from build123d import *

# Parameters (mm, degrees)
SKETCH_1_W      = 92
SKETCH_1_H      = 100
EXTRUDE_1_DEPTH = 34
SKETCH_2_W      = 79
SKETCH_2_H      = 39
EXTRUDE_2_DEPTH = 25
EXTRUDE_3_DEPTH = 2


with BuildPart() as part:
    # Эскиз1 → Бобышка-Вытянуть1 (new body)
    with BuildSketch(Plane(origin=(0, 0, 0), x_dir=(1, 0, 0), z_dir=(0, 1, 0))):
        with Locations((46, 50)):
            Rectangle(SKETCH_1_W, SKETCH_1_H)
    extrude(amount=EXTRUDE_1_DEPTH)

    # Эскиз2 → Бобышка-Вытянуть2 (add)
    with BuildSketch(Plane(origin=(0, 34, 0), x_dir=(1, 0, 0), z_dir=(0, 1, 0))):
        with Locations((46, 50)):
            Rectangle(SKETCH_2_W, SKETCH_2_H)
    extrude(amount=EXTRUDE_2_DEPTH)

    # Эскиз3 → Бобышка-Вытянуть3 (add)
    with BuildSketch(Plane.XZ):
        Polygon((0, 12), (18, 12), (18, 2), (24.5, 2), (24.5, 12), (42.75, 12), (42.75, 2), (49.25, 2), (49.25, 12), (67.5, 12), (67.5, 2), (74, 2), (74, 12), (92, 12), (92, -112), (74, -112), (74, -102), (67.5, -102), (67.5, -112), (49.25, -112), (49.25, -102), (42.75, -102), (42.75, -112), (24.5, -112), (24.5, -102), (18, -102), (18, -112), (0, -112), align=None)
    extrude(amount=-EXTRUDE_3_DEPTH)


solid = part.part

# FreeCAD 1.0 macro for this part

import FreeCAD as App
import Part
import Sketcher
from FreeCAD import Vector
Q = App.Units.Quantity

doc = App.newDocument("Part")
body = doc.addObject("PartDesign::Body", "Body")

# Sketch on XZ plane
sketch1 = body.newObject("Sketcher::SketchObject", "Sketch")
sketch1.AttachmentSupport = (doc.getObject("XZ_Plane"), [""])
sketch1.MapMode = "FlatFace"
sketch1.addGeometry(Part.LineSegment(Vector(0, -100, 0), Vector(0, 0, 0)), False)
sketch1.addGeometry(Part.LineSegment(Vector(0, 0, 0), Vector(92, 0, 0)), False)
sketch1.addGeometry(Part.LineSegment(Vector(92, 0, 0), Vector(92, -100, 0)), False)
sketch1.addGeometry(Part.LineSegment(Vector(92, -100, 0), Vector(0, -100, 0)), False)
sketch1.addConstraint(Sketcher.Constraint("Coincident", 0, 2, 1, 1))
sketch1.addConstraint(Sketcher.Constraint("Coincident", 1, 2, 2, 1))
sketch1.addConstraint(Sketcher.Constraint("Coincident", 2, 2, 3, 1))
sketch1.addConstraint(Sketcher.Constraint("Coincident", 3, 2, 0, 1))
sketch1.addConstraint(Sketcher.Constraint("Vertical", 0))
sketch1.addConstraint(Sketcher.Constraint("Horizontal", 1))
sketch1.addConstraint(Sketcher.Constraint("Vertical", 2))
sketch1.addConstraint(Sketcher.Constraint("Horizontal", 3))
sketch1.addConstraint(Sketcher.Constraint("Coincident", 0, 2, -1, 1))
sketch1.addConstraint(Sketcher.Constraint("DistanceX", 1, 1, 1, 2, Q("92 mm")))
sketch1.addConstraint(Sketcher.Constraint("DistanceY", 0, 1, 0, 2, Q("100 mm")))
pad1 = body.newObject("PartDesign::Pad", "Pad")
pad1.Profile = sketch1
pad1.Length = 34
pad1.Reversed = True

# Sketch on XZ plane
sketch2 = body.newObject("Sketcher::SketchObject", "Sketch001")
sketch2.AttachmentSupport = (doc.getObject("XZ_Plane"), [""])
sketch2.MapMode = "FlatFace"
sketch2.AttachmentOffset = App.Placement(Vector(0, 0, -34), App.Rotation())
sketch2.addGeometry(Part.LineSegment(Vector(6, -70, 0), Vector(6, -30, 0)), False)
sketch2.addGeometry(Part.LineSegment(Vector(6, -30, 0), Vector(86, -30, 0)), False)
sketch2.addGeometry(Part.LineSegment(Vector(86, -30, 0), Vector(86, -70, 0)), False)
sketch2.addGeometry(Part.LineSegment(Vector(86, -70, 0), Vector(6, -70, 0)), False)
sketch2.addConstraint(Sketcher.Constraint("Coincident", 0, 2, 1, 1))
sketch2.addConstraint(Sketcher.Constraint("Coincident", 1, 2, 2, 1))
sketch2.addConstraint(Sketcher.Constraint("Coincident", 2, 2, 3, 1))
sketch2.addConstraint(Sketcher.Constraint("Coincident", 3, 2, 0, 1))
sketch2.addConstraint(Sketcher.Constraint("Vertical", 0))
sketch2.addConstraint(Sketcher.Constraint("Horizontal", 1))
sketch2.addConstraint(Sketcher.Constraint("Vertical", 2))
sketch2.addConstraint(Sketcher.Constraint("Horizontal", 3))
sketch2.addConstraint(Sketcher.Constraint("DistanceX", 1, 1, 1, 2, Q("79 mm")))
sketch2.addConstraint(Sketcher.Constraint("DistanceY", 0, 1, 0, 2, Q("39 mm")))
sketch2.addConstraint(Sketcher.Constraint("DistanceX", -1, 1, 0, 2, Q("6.5 mm")))
sketch2.addConstraint(Sketcher.Constraint("DistanceY", 0, 2, -1, 1, Q("30.5 mm")))
pad2 = body.newObject("PartDesign::Pad", "Pad001")
pad2.Profile = sketch2
pad2.Length = 25
pad2.Reversed = True

# Sketch on XZ plane
sketch3 = body.newObject("Sketcher::SketchObject", "Sketch002")
sketch3.AttachmentSupport = (doc.getObject("XZ_Plane"), [""])
sketch3.MapMode = "FlatFace"
sketch3.addGeometry(Part.LineSegment(Vector(18, 12, 0), Vector(0, 12, 0)), False)
sketch3.addGeometry(Part.LineSegment(Vector(0, 12, 0), Vector(0, -112, 0)), False)
sketch3.addGeometry(Part.LineSegment(Vector(0, -112, 0), Vector(18, -112, 0)), False)
sketch3.addGeometry(Part.LineSegment(Vector(18, -112, 0), Vector(18, -102, 0)), False)
sketch3.addGeometry(Part.LineSegment(Vector(18, -102, 0), Vector(24, -102, 0)), False)
sketch3.addGeometry(Part.LineSegment(Vector(24, -102, 0), Vector(24, -112, 0)), False)
sketch3.addGeometry(Part.LineSegment(Vector(24, -112, 0), Vector(43, -112, 0)), False)
sketch3.addGeometry(Part.LineSegment(Vector(43, -112, 0), Vector(43, -102, 0)), False)
sketch3.addGeometry(Part.LineSegment(Vector(43, -102, 0), Vector(49, -102, 0)), False)
sketch3.addGeometry(Part.LineSegment(Vector(49, -102, 0), Vector(49, -112, 0)), False)
sketch3.addGeometry(Part.LineSegment(Vector(49, -112, 0), Vector(68, -112, 0)), False)
sketch3.addGeometry(Part.LineSegment(Vector(68, -112, 0), Vector(68, -102, 0)), False)
sketch3.addGeometry(Part.LineSegment(Vector(68, -102, 0), Vector(74, -102, 0)), False)
sketch3.addGeometry(Part.LineSegment(Vector(74, -102, 0), Vector(74, -112, 0)), False)
sketch3.addGeometry(Part.LineSegment(Vector(74, -112, 0), Vector(92, -112, 0)), False)
sketch3.addGeometry(Part.LineSegment(Vector(92, -112, 0), Vector(92, 12, 0)), False)
sketch3.addGeometry(Part.LineSegment(Vector(92, 12, 0), Vector(74, 12, 0)), False)
sketch3.addGeometry(Part.LineSegment(Vector(74, 12, 0), Vector(74, 2, 0)), False)
sketch3.addGeometry(Part.LineSegment(Vector(74, 2, 0), Vector(68, 2, 0)), False)
sketch3.addGeometry(Part.LineSegment(Vector(68, 2, 0), Vector(68, 12, 0)), False)
sketch3.addGeometry(Part.LineSegment(Vector(68, 12, 0), Vector(49, 12, 0)), False)
sketch3.addGeometry(Part.LineSegment(Vector(49, 12, 0), Vector(49, 2, 0)), False)
sketch3.addGeometry(Part.LineSegment(Vector(49, 2, 0), Vector(43, 2, 0)), False)
sketch3.addGeometry(Part.LineSegment(Vector(43, 2, 0), Vector(43, 12, 0)), False)
sketch3.addGeometry(Part.LineSegment(Vector(43, 12, 0), Vector(24, 12, 0)), False)
sketch3.addGeometry(Part.LineSegment(Vector(24, 12, 0), Vector(24, 2, 0)), False)
sketch3.addGeometry(Part.LineSegment(Vector(24, 2, 0), Vector(18, 2, 0)), False)
sketch3.addGeometry(Part.LineSegment(Vector(18, 2, 0), Vector(18, 12, 0)), False)
sketch3.addConstraint(Sketcher.Constraint("Coincident", 0, 2, 1, 1))
sketch3.addConstraint(Sketcher.Constraint("Coincident", 1, 2, 2, 1))
sketch3.addConstraint(Sketcher.Constraint("Coincident", 2, 2, 3, 1))
sketch3.addConstraint(Sketcher.Constraint("Coincident", 3, 2, 4, 1))
sketch3.addConstraint(Sketcher.Constraint("Coincident", 4, 2, 5, 1))
sketch3.addConstraint(Sketcher.Constraint("Coincident", 5, 2, 6, 1))
sketch3.addConstraint(Sketcher.Constraint("Coincident", 6, 2, 7, 1))
sketch3.addConstraint(Sketcher.Constraint("Coincident", 7, 2, 8, 1))
sketch3.addConstraint(Sketcher.Constraint("Coincident", 8, 2, 9, 1))
sketch3.addConstraint(Sketcher.Constraint("Coincident", 9, 2, 10, 1))
sketch3.addConstraint(Sketcher.Constraint("Coincident", 10, 2, 11, 1))
sketch3.addConstraint(Sketcher.Constraint("Coincident", 11, 2, 12, 1))
sketch3.addConstraint(Sketcher.Constraint("Coincident", 12, 2, 13, 1))
sketch3.addConstraint(Sketcher.Constraint("Coincident", 13, 2, 14, 1))
sketch3.addConstraint(Sketcher.Constraint("Coincident", 14, 2, 15, 1))
sketch3.addConstraint(Sketcher.Constraint("Coincident", 15, 2, 16, 1))
sketch3.addConstraint(Sketcher.Constraint("Coincident", 16, 2, 17, 1))
sketch3.addConstraint(Sketcher.Constraint("Coincident", 17, 2, 18, 1))
sketch3.addConstraint(Sketcher.Constraint("Coincident", 18, 2, 19, 1))
sketch3.addConstraint(Sketcher.Constraint("Coincident", 19, 2, 20, 1))
sketch3.addConstraint(Sketcher.Constraint("Coincident", 20, 2, 21, 1))
sketch3.addConstraint(Sketcher.Constraint("Coincident", 21, 2, 22, 1))
sketch3.addConstraint(Sketcher.Constraint("Coincident", 22, 2, 23, 1))
sketch3.addConstraint(Sketcher.Constraint("Coincident", 23, 2, 24, 1))
sketch3.addConstraint(Sketcher.Constraint("Coincident", 24, 2, 25, 1))
sketch3.addConstraint(Sketcher.Constraint("Coincident", 25, 2, 26, 1))
sketch3.addConstraint(Sketcher.Constraint("Coincident", 26, 2, 27, 1))
sketch3.addConstraint(Sketcher.Constraint("Coincident", 27, 2, 0, 1))
sketch3.addConstraint(Sketcher.Constraint("Horizontal", 0))
sketch3.addConstraint(Sketcher.Constraint("Vertical", 1))
sketch3.addConstraint(Sketcher.Constraint("Horizontal", 2))
sketch3.addConstraint(Sketcher.Constraint("Vertical", 3))
sketch3.addConstraint(Sketcher.Constraint("Horizontal", 4))
sketch3.addConstraint(Sketcher.Constraint("Vertical", 5))
sketch3.addConstraint(Sketcher.Constraint("Horizontal", 6))
sketch3.addConstraint(Sketcher.Constraint("Vertical", 7))
sketch3.addConstraint(Sketcher.Constraint("Horizontal", 8))
sketch3.addConstraint(Sketcher.Constraint("Vertical", 9))
sketch3.addConstraint(Sketcher.Constraint("Horizontal", 10))
sketch3.addConstraint(Sketcher.Constraint("Vertical", 11))
sketch3.addConstraint(Sketcher.Constraint("Horizontal", 12))
sketch3.addConstraint(Sketcher.Constraint("Vertical", 13))
sketch3.addConstraint(Sketcher.Constraint("Horizontal", 14))
sketch3.addConstraint(Sketcher.Constraint("Vertical", 15))
sketch3.addConstraint(Sketcher.Constraint("Horizontal", 16))
sketch3.addConstraint(Sketcher.Constraint("Vertical", 17))
sketch3.addConstraint(Sketcher.Constraint("Horizontal", 18))
sketch3.addConstraint(Sketcher.Constraint("Vertical", 19))
sketch3.addConstraint(Sketcher.Constraint("Horizontal", 20))
sketch3.addConstraint(Sketcher.Constraint("Vertical", 21))
sketch3.addConstraint(Sketcher.Constraint("Horizontal", 22))
sketch3.addConstraint(Sketcher.Constraint("Vertical", 23))
sketch3.addConstraint(Sketcher.Constraint("Horizontal", 24))
sketch3.addConstraint(Sketcher.Constraint("Vertical", 25))
sketch3.addConstraint(Sketcher.Constraint("Horizontal", 26))
sketch3.addConstraint(Sketcher.Constraint("Vertical", 27))
sketch3.addConstraint(Sketcher.Constraint("PointOnObject", 0, 2, -2))
sketch3.addConstraint(Sketcher.Constraint("Horizontal", 2, 2, 5, 2))
sketch3.addConstraint(Sketcher.Constraint("Horizontal", 4, 2, 7, 2))
sketch3.addConstraint(Sketcher.Constraint("Horizontal", 6, 2, 9, 2))
sketch3.addConstraint(Sketcher.Constraint("Horizontal", 8, 2, 11, 2))
sketch3.addConstraint(Sketcher.Constraint("Horizontal", 10, 2, 13, 2))
sketch3.addConstraint(Sketcher.Constraint("Horizontal", 0, 2, 15, 2))
sketch3.addConstraint(Sketcher.Constraint("Horizontal", 16, 2, 19, 2))
sketch3.addConstraint(Sketcher.Constraint("Horizontal", 18, 2, 21, 2))
sketch3.addConstraint(Sketcher.Constraint("Horizontal", 20, 2, 23, 2))
sketch3.addConstraint(Sketcher.Constraint("Horizontal", 22, 2, 25, 2))
sketch3.addConstraint(Sketcher.Constraint("Vertical", 13, 2, 16, 2))
sketch3.addConstraint(Sketcher.Constraint("Vertical", 11, 2, 18, 2))
sketch3.addConstraint(Sketcher.Constraint("Vertical", 9, 2, 20, 2))
sketch3.addConstraint(Sketcher.Constraint("Vertical", 7, 2, 22, 2))
sketch3.addConstraint(Sketcher.Constraint("Vertical", 5, 2, 24, 2))
sketch3.addConstraint(Sketcher.Constraint("Vertical", 3, 2, 26, 2))
sketch3.addConstraint(Sketcher.Constraint("Equal", 4, 8))
sketch3.addConstraint(Sketcher.Constraint("Equal", 6, 10))
sketch3.addConstraint(Sketcher.Constraint("Equal", 8, 12))
sketch3.addConstraint(Sketcher.Constraint("Equal", 2, 14))
sketch3.addConstraint(Sketcher.Constraint("Equal", 13, 17))
sketch3.addConstraint(Sketcher.Constraint("DistanceX", 0, 2, 0, 1, Q("18 mm")))
sketch3.addConstraint(Sketcher.Constraint("DistanceY", 1, 2, 1, 1, Q("124 mm")))
sketch3.addConstraint(Sketcher.Constraint("DistanceY", 3, 1, 3, 2, Q("10 mm")))
sketch3.addConstraint(Sketcher.Constraint("DistanceX", 4, 1, 4, 2, Q("6.5 mm")))
sketch3.addConstraint(Sketcher.Constraint("DistanceY", -1, 1, 0, 2, Q("12 mm")))
sketch3.addConstraint(Sketcher.Constraint("DistanceX", -1, 1, 12, 2, Q("74 mm")))
pad3 = body.newObject("PartDesign::Pad", "Pad002")
pad3.Profile = sketch3
pad3.Length = 2
pad3.Reversed = True

doc.recompute()
